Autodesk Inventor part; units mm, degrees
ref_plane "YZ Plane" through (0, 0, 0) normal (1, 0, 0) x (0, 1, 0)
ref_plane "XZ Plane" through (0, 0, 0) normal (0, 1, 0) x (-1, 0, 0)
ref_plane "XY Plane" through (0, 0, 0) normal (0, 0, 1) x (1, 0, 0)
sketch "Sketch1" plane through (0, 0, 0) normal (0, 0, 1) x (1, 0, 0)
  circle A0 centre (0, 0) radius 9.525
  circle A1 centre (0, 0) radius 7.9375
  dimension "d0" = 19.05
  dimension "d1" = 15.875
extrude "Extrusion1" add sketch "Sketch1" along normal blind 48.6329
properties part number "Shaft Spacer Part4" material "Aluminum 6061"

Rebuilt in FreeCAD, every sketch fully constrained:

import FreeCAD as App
import Part
import Sketcher
from FreeCAD import Vector
Q = App.Units.Quantity

doc = App.newDocument("Part")
body = doc.addObject("PartDesign::Body", "Body")

sketch1 = body.newObject("Sketcher::SketchObject", "Sketch")
sketch1.AttachmentSupport = (doc.getObject("XY_Plane"), [""])
sketch1.MapMode = "FlatFace"
sketch1.addGeometry([
    Part.Circle(Vector(0, 0, 0), Vector(0, 0, 1), 10),
    Part.Circle(Vector(0, 0, 0), Vector(0, 0, 1), 8),
], False)
sketch1.addConstraint([
    Sketcher.Constraint("Coincident", 0, 3, -1, 1),
    Sketcher.Constraint("Coincident", 1, 3, -1, 1),
    Sketcher.Constraint("Diameter", 0, Q("0.75 in")),
    Sketcher.Constraint("Diameter", 1, Q("0.625 in")),
])
pad1 = body.newObject("PartDesign::Pad", "Pad")
pad1.Profile = sketch1
pad1.Length = 48.6329

doc.recompute()
